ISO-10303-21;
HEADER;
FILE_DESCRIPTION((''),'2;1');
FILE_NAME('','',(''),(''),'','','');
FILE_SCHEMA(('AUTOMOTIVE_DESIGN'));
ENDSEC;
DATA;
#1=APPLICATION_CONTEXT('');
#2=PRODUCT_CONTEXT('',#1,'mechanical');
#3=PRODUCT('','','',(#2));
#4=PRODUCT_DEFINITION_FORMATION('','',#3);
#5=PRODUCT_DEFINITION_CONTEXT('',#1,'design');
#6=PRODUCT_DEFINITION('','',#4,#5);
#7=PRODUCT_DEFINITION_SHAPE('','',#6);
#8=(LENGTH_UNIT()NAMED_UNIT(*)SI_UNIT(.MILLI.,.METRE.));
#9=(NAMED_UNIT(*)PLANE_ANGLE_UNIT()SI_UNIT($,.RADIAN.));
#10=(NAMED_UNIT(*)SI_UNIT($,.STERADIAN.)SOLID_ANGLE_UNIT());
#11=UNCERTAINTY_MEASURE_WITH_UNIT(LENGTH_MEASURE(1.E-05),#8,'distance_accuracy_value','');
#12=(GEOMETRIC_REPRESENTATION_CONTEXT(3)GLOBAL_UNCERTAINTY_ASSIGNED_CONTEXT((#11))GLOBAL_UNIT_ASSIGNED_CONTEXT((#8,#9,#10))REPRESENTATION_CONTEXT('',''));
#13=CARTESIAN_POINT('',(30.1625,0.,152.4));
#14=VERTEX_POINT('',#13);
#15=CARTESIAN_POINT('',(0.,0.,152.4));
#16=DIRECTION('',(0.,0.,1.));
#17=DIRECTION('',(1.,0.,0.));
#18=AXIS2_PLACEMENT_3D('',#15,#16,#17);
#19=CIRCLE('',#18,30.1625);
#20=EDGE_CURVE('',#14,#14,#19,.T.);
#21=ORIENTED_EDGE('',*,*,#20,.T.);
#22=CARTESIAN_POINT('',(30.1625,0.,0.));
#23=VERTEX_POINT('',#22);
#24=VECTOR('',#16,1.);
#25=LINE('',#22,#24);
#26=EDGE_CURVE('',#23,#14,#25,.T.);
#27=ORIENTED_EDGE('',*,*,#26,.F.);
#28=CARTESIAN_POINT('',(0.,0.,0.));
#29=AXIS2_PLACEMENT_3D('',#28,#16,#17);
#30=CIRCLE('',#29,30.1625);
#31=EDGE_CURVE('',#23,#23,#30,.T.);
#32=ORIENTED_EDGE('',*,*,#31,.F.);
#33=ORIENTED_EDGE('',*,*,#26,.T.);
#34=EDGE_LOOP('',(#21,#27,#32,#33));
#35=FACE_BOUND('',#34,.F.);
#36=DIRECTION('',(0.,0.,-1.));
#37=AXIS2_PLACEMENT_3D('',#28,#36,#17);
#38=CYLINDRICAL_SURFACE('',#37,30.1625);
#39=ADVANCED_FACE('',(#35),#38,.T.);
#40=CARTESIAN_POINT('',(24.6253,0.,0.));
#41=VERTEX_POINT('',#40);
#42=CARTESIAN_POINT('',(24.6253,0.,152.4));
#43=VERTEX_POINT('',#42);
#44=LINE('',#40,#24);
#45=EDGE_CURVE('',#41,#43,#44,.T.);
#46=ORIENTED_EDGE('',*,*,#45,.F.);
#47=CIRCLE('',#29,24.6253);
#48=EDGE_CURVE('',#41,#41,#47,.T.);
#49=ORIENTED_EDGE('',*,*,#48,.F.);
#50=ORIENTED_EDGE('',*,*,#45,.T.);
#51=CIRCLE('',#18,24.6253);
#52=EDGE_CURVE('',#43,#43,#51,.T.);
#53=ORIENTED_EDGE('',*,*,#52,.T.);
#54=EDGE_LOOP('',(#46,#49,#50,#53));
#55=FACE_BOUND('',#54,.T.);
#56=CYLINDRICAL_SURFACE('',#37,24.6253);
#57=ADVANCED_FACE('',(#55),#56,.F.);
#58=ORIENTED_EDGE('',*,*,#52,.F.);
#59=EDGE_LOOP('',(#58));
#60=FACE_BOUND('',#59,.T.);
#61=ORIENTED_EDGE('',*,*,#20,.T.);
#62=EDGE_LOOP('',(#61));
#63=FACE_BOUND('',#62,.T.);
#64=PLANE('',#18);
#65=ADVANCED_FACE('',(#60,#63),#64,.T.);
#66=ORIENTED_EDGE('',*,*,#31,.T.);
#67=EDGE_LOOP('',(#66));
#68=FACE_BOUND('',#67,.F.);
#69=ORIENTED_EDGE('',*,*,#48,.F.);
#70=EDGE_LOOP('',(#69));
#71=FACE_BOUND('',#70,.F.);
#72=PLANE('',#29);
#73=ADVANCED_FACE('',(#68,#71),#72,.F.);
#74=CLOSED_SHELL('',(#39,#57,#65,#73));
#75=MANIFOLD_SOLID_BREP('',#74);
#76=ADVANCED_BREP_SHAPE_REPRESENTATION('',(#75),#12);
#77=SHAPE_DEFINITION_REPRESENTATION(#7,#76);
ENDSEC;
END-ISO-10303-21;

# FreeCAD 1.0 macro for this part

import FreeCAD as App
import Part
import Sketcher
from FreeCAD import Vector
Q = App.Units.Quantity

doc = App.newDocument("Part")
params = doc.addObject("Spreadsheet::Sheet", "Params")
for row, (alias, value) in enumerate([
    ("sketch1_diameter", "2.375 in"),
    ("sketch1_diameter2", "1.939 in"),
    ("pad1_length", "6 in"),
], start=1):
    params.set(f"A{row}", alias)
    params.set(f"B{row}", "=" + value)
    params.setAlias(f"B{row}", alias)

body = doc.addObject("PartDesign::Body", "Body")

# Sketch on XY plane
sketch1 = body.newObject("Sketcher::SketchObject", "Sketch")
sketch1.AttachmentSupport = (doc.getObject("XY_Plane"), [""])
sketch1.MapMode = "FlatFace"
sketch1.addGeometry([
    Part.Circle(Vector(0, 0, 0), Vector(0, 0, 1), 30),
    Part.Circle(Vector(0, 0, 0), Vector(0, 0, 1), 25),
], False)
sketch1.addConstraint([
    Sketcher.Constraint("Coincident", 0, 3, -1, 1),
    Sketcher.Constraint("Coincident", 1, 3, -1, 1),
    Sketcher.Constraint("Diameter", 0, Q("2.375 in")),
    Sketcher.Constraint("Diameter", 1, Q("1.939 in")),
])
sketch1.setExpression("Constraints[2]", "Params.sketch1_diameter")
sketch1.setExpression("Constraints[3]", "Params.sketch1_diameter2")
pad1 = body.newObject("PartDesign::Pad", "Pad")
pad1.Profile = sketch1
pad1.setExpression("Length", "Params.pad1_length")

doc.recompute()
